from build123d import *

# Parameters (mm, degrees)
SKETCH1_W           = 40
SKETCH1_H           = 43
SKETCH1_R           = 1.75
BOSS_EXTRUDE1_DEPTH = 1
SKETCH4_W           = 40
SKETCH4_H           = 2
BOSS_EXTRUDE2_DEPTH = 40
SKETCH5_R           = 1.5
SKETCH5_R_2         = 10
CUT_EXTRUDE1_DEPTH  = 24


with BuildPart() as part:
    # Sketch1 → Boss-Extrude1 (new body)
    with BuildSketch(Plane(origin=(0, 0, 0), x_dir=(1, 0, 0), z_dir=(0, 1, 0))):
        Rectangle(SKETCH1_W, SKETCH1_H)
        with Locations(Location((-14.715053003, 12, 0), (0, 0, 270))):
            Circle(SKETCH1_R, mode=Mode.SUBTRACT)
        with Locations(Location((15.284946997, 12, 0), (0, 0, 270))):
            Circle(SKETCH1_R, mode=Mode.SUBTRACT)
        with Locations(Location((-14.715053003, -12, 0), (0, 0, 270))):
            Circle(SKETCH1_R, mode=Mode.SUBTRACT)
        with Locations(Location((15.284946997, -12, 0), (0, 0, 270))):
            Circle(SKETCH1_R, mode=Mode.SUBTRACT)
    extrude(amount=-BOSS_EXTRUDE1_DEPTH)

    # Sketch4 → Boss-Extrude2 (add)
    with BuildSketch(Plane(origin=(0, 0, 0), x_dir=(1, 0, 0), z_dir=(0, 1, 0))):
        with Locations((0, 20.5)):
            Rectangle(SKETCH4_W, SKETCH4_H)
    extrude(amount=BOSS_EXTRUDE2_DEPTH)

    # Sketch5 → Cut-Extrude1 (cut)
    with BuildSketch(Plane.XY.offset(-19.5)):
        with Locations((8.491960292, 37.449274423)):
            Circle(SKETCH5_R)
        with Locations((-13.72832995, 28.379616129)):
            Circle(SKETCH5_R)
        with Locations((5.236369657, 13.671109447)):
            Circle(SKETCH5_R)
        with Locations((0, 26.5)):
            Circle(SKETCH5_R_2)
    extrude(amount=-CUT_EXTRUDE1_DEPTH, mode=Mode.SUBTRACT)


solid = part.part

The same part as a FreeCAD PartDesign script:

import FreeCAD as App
import Part
import Sketcher

doc = App.newDocument("Part")
body = doc.addObject("PartDesign::Body", "Body")

sketch1 = body.newObject("Sketcher::SketchObject", "Sketch")
sketch1.AttachmentSupport = (doc.getObject("XZ_Plane"), [""])
sketch1.MapMode = "FlatFace"
sketch1.addGeometry([
    Part.LineSegment(App.Vector(-20, -21.5, 0), App.Vector(-20, 21.5, 0)),
    Part.LineSegment(App.Vector(-20, 21.5, 0), App.Vector(20, 21.5, 0)),
    Part.LineSegment(App.Vector(20, 21.5, 0), App.Vector(20, -21.5, 0)),
    Part.LineSegment(App.Vector(20, -21.5, 0), App.Vector(-20, -21.5, 0)),
    Part.Circle(App.Vector(-14.7, 12, 0), App.Vector(0, 0, 1), 1.8),
    Part.Circle(App.Vector(15.3, 12, 0), App.Vector(0, 0, 1), 1.8),
    Part.Circle(App.Vector(-14.7, -12, 0), App.Vector(0, 0, 1), 1.8),
    Part.Circle(App.Vector(15.3, -12, 0), App.Vector(0, 0, 1), 1.8),
], False)
sketch1.addConstraint([
    Sketcher.Constraint("Coincident", 0, 2, 1, 1),
    Sketcher.Constraint("Coincident", 1, 2, 2, 1),
    Sketcher.Constraint("Coincident", 2, 2, 3, 1),
    Sketcher.Constraint("Coincident", 3, 2, 0, 1),
    Sketcher.Constraint("Vertical", 0),
    Sketcher.Constraint("Horizontal", 1),
    Sketcher.Constraint("Vertical", 2),
    Sketcher.Constraint("Horizontal", 3),
    Sketcher.Constraint("Equal", 4, 5),
    Sketcher.Constraint("Equal", 5, 6),
    Sketcher.Constraint("Equal", 6, 7),
    Sketcher.Constraint("Symmetric", 0, 2, 2, 2, -1, 1),
    Sketcher.Constraint("Symmetric", 4, 3, 6, 3, -1),
    Sketcher.Constraint("Symmetric", 5, 3, 7, 3, -1),
    Sketcher.Constraint("Horizontal", 4, 3, 5, 3),
    Sketcher.Constraint("Diameter", 4, 3.5),
    Sketcher.Constraint("DistanceX", 1, 1, 1, 2, 40.0),
    Sketcher.Constraint("DistanceY", 0, 1, 0, 2, 43.0),
    Sketcher.Constraint("DistanceY", -1, 1, 4, 3, 12.0),
    Sketcher.Constraint("DistanceX", 4, 3, 5, 3, 30.0),
    Sketcher.Constraint("DistanceX", 4, 3, -1, 1, 14.715053),
])
pad1 = body.newObject("PartDesign::Pad", "Pad")
pad1.Profile = sketch1
pad1.Length = 1

sketch2 = body.newObject("Sketcher::SketchObject", "Sketch001")
sketch2.AttachmentSupport = (doc.getObject("XZ_Plane"), [""])
sketch2.MapMode = "FlatFace"
sketch2.addGeometry([
    Part.LineSegment(App.Vector(-20, -21.5, 0), App.Vector(-20, -19.5, 0)),
    Part.LineSegment(App.Vector(-20, -19.5, 0), App.Vector(20, -19.5, 0)),
    Part.LineSegment(App.Vector(20, -19.5, 0), App.Vector(20, -21.5, 0)),
    Part.LineSegment(App.Vector(20, -21.5, 0), App.Vector(-20, -21.5, 0)),
], False)
sketch2.addConstraint([
    Sketcher.Constraint("Coincident", 0, 2, 1, 1),
    Sketcher.Constraint("Coincident", 1, 2, 2, 1),
    Sketcher.Constraint("Coincident", 2, 2, 3, 1),
    Sketcher.Constraint("Coincident", 3, 2, 0, 1),
    Sketcher.Constraint("Vertical", 0),
    Sketcher.Constraint("Horizontal", 1),
    Sketcher.Constraint("Vertical", 2),
    Sketcher.Constraint("Horizontal", 3),
    Sketcher.Constraint("DistanceX", 1, 1, 1, 2, 40.0),
    Sketcher.Constraint("DistanceY", 0, 1, 0, 2, 2.0),
    Sketcher.Constraint("DistanceX", 0, 2, -1, 1, 20.0),
    Sketcher.Constraint("DistanceY", 0, 2, -1, 1, 19.5),
])
pad2 = body.newObject("PartDesign::Pad", "Pad001")
pad2.Profile = sketch2
pad2.Length = 40
pad2.Reversed = True

sketch3 = body.newObject("Sketcher::SketchObject", "Sketch002")
sketch3.AttachmentSupport = (doc.getObject("XY_Plane"), [""])
sketch3.MapMode = "FlatFace"
sketch3.AttachmentOffset = App.Placement(App.Vector(0, 0, -19.5), App.Rotation())
sketch3.addGeometry([
    Part.Circle(App.Vector(8.5, 37.4, 0), App.Vector(0, 0, 1), 1.5),
    Part.Circle(App.Vector(-13.7, 28.4, 0), App.Vector(0, 0, 1), 1.5),
    Part.Circle(App.Vector(5.2, 13.7, 0), App.Vector(0, 0, 1), 1.5),
    Part.Circle(App.Vector(0, 26.5, 0), App.Vector(0, 0, 1), 10),
], False)
sketch3.addConstraint([
    Sketcher.Constraint("Equal", 0, 1),
    Sketcher.Constraint("Equal", 1, 2),
    Sketcher.Constraint("PointOnObject", 3, 3, -2),
    Sketcher.Constraint("Diameter", 0, 3.0),
    Sketcher.Constraint("Diameter", 3, 20.0),
    Sketcher.Constraint("DistanceY", -1, 1, 3, 3, 26.5),
    Sketcher.Constraint("DistanceX", 1, 3, 2, 3, 18.9647),
    Sketcher.Constraint("DistanceX", -1, 1, 0, 3, 8.49196),
    Sketcher.Constraint("DistanceX", 1, 3, -1, 1, 13.72833),
    Sketcher.Constraint("DistanceY", -1, 1, 2, 3, 13.671109),
    Sketcher.Constraint("DistanceY", 1, 3, 0, 3, 9.069658),
    Sketcher.Constraint("DistanceY", -1, 1, 0, 3, 37.449274),
])
pocket1 = body.newObject("PartDesign::Pocket", "Pocket")
pocket1.Profile = sketch3
pocket1.Length = 24

doc.recompute()
